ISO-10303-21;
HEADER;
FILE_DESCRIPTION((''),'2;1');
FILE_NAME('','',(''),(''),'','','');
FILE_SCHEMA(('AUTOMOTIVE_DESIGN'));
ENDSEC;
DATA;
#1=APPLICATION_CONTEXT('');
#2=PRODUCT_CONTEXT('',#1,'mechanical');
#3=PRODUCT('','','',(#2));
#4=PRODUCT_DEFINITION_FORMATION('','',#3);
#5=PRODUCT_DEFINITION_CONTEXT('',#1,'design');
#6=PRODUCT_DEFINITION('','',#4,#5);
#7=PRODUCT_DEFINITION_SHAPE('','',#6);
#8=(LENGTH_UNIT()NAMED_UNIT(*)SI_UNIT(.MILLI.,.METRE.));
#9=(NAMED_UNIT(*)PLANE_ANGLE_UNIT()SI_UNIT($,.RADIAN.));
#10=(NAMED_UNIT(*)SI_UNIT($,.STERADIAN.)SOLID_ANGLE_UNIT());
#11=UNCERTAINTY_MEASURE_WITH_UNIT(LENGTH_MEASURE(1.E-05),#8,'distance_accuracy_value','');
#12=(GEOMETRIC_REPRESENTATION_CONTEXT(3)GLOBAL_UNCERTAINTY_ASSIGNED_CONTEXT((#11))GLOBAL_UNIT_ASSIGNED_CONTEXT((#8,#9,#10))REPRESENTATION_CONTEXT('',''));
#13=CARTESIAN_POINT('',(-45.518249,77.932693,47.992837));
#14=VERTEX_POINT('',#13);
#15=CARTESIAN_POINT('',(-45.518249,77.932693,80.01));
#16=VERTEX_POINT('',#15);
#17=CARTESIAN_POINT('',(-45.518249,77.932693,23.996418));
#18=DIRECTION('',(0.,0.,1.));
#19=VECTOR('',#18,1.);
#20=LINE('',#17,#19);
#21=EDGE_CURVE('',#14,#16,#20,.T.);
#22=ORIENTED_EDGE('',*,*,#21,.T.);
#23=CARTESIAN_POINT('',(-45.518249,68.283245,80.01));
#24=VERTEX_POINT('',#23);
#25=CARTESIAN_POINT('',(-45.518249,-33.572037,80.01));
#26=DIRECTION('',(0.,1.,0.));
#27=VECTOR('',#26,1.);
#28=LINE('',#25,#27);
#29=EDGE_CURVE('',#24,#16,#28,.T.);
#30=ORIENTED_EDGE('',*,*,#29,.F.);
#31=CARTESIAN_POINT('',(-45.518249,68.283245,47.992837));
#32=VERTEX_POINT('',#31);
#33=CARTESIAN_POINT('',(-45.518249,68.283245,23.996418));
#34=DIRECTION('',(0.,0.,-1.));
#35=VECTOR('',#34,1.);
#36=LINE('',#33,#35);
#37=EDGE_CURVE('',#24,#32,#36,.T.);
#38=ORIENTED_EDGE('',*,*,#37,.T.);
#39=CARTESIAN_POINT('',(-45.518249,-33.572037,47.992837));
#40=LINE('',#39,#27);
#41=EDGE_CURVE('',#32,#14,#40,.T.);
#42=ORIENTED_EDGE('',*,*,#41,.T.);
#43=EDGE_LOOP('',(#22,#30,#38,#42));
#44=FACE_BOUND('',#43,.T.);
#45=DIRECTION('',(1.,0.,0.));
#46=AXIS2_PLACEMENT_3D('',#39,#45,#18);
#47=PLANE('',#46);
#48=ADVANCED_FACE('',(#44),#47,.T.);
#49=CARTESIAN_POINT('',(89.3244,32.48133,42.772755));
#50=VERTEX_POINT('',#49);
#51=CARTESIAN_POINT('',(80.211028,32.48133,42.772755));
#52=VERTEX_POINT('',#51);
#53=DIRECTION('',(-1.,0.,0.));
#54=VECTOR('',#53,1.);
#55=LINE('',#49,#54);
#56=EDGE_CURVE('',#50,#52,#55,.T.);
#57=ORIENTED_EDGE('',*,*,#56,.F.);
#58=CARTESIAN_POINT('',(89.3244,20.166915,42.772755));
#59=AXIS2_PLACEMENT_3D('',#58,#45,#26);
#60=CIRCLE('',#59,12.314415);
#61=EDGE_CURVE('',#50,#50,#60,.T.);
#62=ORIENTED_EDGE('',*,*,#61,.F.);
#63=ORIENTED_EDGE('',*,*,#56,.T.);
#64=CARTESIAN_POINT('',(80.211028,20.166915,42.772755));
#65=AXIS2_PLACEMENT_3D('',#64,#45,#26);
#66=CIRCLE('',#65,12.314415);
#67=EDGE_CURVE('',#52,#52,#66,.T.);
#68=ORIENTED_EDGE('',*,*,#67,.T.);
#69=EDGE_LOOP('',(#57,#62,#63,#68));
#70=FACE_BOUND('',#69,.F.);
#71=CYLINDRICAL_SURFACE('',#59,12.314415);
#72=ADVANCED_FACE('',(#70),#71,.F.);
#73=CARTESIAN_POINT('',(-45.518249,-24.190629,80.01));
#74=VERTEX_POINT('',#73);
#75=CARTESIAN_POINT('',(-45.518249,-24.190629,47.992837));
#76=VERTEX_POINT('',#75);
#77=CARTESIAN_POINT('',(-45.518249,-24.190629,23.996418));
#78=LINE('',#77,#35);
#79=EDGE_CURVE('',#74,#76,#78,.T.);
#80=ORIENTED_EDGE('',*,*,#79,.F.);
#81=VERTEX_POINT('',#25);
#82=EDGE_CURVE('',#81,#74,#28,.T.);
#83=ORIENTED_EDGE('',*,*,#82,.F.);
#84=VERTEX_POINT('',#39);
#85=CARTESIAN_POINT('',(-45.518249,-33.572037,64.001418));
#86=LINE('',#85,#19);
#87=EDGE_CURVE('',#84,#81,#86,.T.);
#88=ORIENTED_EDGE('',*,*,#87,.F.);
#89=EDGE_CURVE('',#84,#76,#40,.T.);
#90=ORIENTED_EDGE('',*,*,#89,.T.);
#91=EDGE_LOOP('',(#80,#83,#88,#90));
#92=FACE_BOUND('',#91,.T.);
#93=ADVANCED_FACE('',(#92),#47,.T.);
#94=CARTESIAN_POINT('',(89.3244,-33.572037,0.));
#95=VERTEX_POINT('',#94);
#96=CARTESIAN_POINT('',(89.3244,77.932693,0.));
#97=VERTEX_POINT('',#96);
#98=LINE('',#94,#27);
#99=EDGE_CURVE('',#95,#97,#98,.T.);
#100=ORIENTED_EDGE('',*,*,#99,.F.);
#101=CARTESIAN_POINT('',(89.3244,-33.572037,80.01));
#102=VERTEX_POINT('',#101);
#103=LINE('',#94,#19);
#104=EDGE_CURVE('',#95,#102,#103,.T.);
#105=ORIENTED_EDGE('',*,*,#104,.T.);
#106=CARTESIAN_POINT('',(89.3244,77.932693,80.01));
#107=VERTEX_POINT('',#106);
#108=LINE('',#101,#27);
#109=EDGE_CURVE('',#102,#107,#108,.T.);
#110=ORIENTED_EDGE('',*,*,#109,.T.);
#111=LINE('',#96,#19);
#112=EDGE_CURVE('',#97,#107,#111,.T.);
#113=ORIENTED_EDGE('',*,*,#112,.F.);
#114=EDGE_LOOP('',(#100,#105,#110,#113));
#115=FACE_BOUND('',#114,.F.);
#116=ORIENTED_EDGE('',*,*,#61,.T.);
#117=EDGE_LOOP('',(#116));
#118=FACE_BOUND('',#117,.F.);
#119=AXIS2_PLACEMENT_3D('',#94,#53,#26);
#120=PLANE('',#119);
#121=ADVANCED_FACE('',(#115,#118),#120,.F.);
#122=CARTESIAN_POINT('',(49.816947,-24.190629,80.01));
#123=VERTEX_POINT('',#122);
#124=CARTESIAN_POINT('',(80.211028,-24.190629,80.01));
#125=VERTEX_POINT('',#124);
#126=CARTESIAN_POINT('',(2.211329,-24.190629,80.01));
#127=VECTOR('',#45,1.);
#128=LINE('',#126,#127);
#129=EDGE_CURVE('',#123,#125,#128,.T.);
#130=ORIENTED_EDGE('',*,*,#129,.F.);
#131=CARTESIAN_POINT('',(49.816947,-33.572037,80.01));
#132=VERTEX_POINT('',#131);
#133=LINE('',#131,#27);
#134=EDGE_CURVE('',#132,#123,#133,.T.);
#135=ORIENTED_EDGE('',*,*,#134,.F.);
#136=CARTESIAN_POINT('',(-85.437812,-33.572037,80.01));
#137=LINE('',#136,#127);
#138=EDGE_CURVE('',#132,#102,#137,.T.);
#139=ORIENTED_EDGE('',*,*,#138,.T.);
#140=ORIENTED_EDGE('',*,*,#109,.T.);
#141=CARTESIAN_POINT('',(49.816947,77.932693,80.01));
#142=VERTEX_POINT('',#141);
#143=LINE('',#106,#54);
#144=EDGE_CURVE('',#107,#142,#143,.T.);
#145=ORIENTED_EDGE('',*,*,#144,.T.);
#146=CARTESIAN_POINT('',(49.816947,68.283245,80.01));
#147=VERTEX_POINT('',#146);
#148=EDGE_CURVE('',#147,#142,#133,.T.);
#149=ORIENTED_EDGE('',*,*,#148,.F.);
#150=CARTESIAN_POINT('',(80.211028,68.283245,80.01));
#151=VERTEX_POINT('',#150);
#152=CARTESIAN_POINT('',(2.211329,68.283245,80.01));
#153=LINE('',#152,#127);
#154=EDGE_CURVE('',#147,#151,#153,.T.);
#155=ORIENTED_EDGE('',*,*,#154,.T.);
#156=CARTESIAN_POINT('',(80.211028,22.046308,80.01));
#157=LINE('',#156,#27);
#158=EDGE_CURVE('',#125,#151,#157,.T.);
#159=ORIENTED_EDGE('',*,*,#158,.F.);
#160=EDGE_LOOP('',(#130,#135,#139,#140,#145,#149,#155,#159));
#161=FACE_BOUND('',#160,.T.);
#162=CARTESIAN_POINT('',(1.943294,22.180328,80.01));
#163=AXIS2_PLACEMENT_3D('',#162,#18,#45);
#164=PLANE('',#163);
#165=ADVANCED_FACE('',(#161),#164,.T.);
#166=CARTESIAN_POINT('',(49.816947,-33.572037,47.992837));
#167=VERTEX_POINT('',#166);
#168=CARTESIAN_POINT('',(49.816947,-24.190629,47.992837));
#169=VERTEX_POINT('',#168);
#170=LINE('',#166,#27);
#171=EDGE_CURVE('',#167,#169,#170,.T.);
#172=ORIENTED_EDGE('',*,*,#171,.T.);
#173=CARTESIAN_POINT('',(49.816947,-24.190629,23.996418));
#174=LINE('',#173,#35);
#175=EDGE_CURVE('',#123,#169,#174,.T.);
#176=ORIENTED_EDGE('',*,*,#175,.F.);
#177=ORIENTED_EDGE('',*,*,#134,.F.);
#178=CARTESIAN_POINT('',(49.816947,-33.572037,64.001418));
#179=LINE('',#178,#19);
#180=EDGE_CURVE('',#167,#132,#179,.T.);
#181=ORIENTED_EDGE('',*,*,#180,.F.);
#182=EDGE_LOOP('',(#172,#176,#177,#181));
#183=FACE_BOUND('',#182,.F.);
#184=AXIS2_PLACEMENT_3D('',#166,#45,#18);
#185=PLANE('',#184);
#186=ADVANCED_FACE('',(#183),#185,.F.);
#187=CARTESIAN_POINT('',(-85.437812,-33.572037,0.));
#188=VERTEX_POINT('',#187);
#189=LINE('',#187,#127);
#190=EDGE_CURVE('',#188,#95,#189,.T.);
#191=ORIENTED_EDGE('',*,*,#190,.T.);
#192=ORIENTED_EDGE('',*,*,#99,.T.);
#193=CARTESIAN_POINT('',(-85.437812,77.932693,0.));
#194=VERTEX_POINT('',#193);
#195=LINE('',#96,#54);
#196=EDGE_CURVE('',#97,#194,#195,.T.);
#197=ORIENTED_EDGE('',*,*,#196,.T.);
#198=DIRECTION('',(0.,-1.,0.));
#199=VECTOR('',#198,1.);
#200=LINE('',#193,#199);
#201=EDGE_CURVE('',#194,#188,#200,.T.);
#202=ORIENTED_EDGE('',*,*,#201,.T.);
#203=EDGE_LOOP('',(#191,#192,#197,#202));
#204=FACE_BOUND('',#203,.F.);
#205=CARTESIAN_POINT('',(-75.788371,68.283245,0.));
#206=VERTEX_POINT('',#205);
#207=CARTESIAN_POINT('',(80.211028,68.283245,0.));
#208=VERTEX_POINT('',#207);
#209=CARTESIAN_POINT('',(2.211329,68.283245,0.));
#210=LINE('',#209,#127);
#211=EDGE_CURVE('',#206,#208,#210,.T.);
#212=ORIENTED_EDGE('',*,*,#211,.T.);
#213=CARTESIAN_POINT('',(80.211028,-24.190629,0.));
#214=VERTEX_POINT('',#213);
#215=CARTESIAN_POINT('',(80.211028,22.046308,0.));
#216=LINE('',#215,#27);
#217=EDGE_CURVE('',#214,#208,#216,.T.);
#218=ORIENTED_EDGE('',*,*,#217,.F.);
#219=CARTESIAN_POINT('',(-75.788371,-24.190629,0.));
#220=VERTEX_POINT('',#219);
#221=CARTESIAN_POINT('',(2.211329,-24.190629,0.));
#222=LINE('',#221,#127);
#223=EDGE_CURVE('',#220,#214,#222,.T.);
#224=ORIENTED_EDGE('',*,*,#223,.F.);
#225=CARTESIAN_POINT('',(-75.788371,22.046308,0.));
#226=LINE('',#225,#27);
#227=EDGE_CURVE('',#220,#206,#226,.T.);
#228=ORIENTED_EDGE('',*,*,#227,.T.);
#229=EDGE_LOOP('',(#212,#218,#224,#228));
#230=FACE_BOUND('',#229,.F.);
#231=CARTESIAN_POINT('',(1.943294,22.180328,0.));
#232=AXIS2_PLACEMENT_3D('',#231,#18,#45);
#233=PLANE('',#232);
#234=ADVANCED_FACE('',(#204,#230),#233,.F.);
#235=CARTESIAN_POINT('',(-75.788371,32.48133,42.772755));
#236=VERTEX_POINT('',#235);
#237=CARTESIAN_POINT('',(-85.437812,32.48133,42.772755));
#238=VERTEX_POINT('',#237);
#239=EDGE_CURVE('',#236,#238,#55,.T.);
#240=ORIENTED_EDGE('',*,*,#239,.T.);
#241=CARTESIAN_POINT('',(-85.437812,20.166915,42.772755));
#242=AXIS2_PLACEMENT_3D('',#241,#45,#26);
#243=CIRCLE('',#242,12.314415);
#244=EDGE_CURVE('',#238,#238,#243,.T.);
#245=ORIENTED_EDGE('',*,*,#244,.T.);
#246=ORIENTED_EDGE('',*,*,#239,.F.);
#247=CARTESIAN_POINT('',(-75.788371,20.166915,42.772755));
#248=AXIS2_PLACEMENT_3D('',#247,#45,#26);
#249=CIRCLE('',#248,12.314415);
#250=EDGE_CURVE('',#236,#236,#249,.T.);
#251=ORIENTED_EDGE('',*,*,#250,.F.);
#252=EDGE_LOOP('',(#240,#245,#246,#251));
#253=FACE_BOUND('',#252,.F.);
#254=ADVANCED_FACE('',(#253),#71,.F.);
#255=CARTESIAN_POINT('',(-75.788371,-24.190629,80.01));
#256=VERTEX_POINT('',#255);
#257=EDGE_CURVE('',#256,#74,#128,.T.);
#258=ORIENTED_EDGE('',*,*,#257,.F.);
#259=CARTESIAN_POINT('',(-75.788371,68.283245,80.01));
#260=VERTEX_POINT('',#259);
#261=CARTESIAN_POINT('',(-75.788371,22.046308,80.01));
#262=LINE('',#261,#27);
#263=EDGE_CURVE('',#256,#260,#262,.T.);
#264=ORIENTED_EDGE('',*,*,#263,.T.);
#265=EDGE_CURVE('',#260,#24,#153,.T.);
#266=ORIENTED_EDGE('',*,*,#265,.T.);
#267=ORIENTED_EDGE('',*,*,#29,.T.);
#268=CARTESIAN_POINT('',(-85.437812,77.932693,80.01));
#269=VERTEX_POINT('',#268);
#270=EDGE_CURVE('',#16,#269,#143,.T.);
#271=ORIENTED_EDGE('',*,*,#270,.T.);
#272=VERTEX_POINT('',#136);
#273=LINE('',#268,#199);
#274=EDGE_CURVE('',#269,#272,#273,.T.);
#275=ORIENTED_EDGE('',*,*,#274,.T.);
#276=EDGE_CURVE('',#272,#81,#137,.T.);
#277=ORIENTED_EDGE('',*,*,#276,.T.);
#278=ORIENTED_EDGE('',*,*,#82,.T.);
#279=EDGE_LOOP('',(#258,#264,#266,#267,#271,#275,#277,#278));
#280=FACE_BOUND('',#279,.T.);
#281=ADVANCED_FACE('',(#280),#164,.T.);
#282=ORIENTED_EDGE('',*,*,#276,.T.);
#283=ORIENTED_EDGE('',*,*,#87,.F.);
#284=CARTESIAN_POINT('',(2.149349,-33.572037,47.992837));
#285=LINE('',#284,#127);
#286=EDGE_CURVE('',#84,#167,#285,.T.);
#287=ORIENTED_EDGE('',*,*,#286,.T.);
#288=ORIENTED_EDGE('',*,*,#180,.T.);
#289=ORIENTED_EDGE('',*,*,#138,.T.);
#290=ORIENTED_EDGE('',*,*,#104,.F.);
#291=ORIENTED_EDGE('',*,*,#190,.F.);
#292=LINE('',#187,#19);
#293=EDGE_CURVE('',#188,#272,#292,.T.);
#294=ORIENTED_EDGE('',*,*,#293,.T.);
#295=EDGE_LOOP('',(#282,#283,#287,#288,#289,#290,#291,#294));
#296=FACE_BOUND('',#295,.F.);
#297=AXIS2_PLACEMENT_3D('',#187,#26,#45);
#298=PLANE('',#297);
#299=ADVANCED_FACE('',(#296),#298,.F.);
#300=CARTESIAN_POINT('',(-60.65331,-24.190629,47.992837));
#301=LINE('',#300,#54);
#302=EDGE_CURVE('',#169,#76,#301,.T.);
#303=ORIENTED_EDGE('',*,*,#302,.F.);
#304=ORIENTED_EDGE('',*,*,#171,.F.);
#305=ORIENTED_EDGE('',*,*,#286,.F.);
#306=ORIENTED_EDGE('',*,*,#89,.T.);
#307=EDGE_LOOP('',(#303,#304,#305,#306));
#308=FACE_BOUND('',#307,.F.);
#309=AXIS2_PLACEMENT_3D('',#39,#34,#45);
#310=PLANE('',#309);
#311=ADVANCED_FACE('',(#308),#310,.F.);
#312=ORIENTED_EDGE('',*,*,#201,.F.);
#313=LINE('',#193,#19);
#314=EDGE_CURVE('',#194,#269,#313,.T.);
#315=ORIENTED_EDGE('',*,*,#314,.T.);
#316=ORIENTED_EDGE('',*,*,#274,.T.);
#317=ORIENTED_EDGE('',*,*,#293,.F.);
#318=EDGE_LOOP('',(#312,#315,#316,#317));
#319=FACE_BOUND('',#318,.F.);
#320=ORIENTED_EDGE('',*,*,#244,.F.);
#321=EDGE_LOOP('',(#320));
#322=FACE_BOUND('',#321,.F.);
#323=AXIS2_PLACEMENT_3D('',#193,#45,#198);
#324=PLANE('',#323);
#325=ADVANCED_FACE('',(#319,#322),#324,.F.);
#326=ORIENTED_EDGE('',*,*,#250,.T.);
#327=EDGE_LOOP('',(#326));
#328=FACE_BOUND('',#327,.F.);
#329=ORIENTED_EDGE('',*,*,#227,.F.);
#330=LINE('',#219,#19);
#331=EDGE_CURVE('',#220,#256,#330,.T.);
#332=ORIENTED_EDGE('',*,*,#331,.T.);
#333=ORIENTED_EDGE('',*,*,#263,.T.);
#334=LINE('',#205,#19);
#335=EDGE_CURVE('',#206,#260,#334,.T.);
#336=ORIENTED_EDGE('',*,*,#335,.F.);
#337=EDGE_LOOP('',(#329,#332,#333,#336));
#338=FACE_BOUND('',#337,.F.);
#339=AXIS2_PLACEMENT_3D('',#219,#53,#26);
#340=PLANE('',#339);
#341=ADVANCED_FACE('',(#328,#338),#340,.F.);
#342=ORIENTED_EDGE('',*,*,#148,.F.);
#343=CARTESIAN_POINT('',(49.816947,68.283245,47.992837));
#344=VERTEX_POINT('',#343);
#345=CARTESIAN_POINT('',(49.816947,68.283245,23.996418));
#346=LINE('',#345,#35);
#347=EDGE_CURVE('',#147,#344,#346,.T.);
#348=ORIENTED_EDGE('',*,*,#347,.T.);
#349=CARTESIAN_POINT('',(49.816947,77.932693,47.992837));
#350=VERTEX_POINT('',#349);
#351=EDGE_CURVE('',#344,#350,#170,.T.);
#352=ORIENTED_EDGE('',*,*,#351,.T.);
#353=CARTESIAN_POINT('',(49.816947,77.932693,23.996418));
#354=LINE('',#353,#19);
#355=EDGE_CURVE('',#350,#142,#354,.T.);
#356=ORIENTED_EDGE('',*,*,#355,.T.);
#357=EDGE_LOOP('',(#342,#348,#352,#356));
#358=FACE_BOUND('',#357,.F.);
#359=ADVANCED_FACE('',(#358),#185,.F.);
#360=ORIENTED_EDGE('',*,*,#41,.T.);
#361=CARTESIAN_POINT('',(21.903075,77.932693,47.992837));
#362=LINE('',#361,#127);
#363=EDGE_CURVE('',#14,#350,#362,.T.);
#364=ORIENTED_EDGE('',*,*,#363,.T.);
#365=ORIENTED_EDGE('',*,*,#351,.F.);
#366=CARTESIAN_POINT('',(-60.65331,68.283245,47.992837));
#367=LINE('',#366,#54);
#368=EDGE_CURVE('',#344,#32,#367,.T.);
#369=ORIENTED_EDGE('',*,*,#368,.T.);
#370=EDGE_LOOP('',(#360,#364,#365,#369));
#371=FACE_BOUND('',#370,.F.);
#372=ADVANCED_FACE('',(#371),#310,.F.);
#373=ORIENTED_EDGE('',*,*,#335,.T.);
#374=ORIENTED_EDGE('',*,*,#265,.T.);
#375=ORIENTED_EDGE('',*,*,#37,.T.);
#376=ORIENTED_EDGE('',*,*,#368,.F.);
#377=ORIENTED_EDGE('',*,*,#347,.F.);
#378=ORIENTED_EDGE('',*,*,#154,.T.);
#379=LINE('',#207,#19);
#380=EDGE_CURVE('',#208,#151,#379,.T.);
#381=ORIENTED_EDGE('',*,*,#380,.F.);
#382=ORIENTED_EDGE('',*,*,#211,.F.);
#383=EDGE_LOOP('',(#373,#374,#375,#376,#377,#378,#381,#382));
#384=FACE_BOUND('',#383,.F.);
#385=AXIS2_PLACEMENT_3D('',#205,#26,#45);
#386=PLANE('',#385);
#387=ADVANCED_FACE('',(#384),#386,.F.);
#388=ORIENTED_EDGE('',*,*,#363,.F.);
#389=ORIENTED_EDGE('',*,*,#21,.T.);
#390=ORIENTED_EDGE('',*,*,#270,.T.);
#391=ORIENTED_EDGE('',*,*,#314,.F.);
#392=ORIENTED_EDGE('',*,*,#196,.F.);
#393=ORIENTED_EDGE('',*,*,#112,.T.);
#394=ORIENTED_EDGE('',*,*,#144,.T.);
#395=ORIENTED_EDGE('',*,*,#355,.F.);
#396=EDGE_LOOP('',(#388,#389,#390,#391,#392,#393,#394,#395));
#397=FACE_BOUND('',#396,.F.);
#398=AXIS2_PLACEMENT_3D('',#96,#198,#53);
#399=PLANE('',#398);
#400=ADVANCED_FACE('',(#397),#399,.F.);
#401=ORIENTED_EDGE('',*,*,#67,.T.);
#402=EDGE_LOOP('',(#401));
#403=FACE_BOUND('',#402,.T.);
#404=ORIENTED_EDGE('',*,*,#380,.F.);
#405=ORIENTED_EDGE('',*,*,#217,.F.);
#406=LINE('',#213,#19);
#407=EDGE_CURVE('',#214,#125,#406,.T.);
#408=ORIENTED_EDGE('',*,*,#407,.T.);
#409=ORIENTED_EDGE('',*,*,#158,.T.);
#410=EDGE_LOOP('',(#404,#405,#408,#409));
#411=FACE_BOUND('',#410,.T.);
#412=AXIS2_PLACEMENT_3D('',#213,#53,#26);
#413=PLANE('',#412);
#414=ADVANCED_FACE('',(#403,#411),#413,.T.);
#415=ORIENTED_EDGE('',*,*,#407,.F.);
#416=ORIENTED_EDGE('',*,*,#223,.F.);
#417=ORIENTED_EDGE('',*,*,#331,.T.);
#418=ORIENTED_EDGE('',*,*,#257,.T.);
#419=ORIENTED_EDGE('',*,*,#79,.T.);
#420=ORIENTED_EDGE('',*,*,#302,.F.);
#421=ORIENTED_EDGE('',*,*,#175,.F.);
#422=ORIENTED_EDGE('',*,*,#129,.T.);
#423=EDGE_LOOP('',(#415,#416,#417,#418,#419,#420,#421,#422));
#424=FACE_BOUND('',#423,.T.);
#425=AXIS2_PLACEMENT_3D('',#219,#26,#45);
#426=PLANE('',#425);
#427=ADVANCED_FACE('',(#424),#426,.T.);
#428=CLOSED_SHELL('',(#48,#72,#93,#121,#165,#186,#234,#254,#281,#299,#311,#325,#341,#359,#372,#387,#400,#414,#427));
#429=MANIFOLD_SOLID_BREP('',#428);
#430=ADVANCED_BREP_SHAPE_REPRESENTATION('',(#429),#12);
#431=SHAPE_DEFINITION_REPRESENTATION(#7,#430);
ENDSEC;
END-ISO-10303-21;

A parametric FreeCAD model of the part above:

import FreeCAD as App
import Part
import Sketcher

V = App.Vector
Q = App.Units.Quantity


def add_polygon(sketch, points):
    """Adds a closed chain of lines whose ends are joined by coincident constraints."""
    first, n = sketch.GeometryCount, len(points)
    for a, b in zip(points, points[1:] + points[:1]):
        sketch.addGeometry(Part.LineSegment(App.Vector(*a, 0), App.Vector(*b, 0)), False)
    for i in range(n):
        sketch.addConstraint(Sketcher.Constraint("Coincident", first + i, 2, first + (i + 1) % n, 1))

doc = App.newDocument("Part")
body = doc.addObject("PartDesign::Body", "Body")

# Sketch on XY plane
sketch1 = body.newObject("Sketcher::SketchObject", "Sketch")
sketch1.AttachmentSupport = (doc.getObject("XY_Plane"), [""])
sketch1.MapMode = "FlatFace"
add_polygon(sketch1, [(-85, 78), (-85, -34), (89, -34), (89, 78)])  # lines 0-3
add_polygon(sketch1, [(80, -24), (-76, -24), (-76, 68), (80, 68)])  # lines 4-7
sketch1.addConstraint([
    Sketcher.Constraint("Vertical", 0),
    Sketcher.Constraint("Horizontal", 1),
    Sketcher.Constraint("Vertical", 2),
    Sketcher.Constraint("Horizontal", 3),
    Sketcher.Constraint("Horizontal", 4),
    Sketcher.Constraint("Vertical", 5),
    Sketcher.Constraint("Horizontal", 6),
    Sketcher.Constraint("Vertical", 7),
    Sketcher.Constraint("DistanceX", 4, 2, 4, 1, 155.9994),
    Sketcher.Constraint("DistanceX", 1, 1, 1, 2, 174.762212),
    Sketcher.Constraint("DistanceY", 0, 2, 0, 1, 111.50473),
    Sketcher.Constraint("DistanceX", -1, 1, 1, 2, 89.3244),
    Sketcher.Constraint("DistanceY", 5, 1, 5, 2, 92.473874),
    Sketcher.Constraint("DistanceX", 4, 2, -1, 1, 75.788371),
    Sketcher.Constraint("DistanceY", 4, 2, -1, 1, 24.190629),
    Sketcher.Constraint("DistanceY", 4, 2, 3, 2, 102.123322),
])
pad1 = body.newObject("PartDesign::Pad", "Pad")
pad1.Profile = sketch1
pad1.Length = Q("3.15 in")

# Sketch on XZ plane
sketch2 = body.newObject("Sketcher::SketchObject", "Sketch001")
sketch2.AttachmentSupport = (doc.getObject("XZ_Plane"), [""])
sketch2.MapMode = "FlatFace"
sketch2.AttachmentOffset = App.Placement(V(0, 0, 33.572037), App.Rotation())
add_polygon(sketch2, [(-46, 80), (-46, 48), (50, 48), (50, 80)])  # lines 0-3
sketch2.addConstraint([
    Sketcher.Constraint("Vertical", 0),
    Sketcher.Constraint("Horizontal", 1),
    Sketcher.Constraint("Vertical", 2),
    Sketcher.Constraint("Horizontal", 3),
    Sketcher.Constraint("DistanceY", -1, 1, 2, 2, Q("3.15 in")),
    Sketcher.Constraint("DistanceX", 1, 1, 1, 2, 95.335197),
    Sketcher.Constraint("DistanceY", 0, 2, 0, 1, 32.017163),
    Sketcher.Constraint("DistanceX", 0, 2, -1, 1, 45.518249),
])
pocket1 = body.newObject("PartDesign::Pocket", "Pocket")
pocket1.Profile = sketch2
pocket1.Type = "ThroughAll"

# Sketch on YZ plane
sketch3 = body.newObject("Sketcher::SketchObject", "Sketch002")
sketch3.AttachmentSupport = (doc.getObject("YZ_Plane"), [""])
sketch3.MapMode = "FlatFace"
sketch3.AttachmentOffset = App.Placement(V(0, 0, 89.3244), App.Rotation())
sketch3.addGeometry(Part.Circle(V(20, 43, 0), V(0, 0, 1), 12), False)
sketch3.addConstraint([
    Sketcher.Constraint("Diameter", 0, 24.628831),
    Sketcher.Constraint("DistanceX", -1, 1, 0, 3, 20.166915),
    Sketcher.Constraint("DistanceY", -1, 1, 0, 3, 42.772755),
])
pocket2 = body.newObject("PartDesign::Pocket", "Pocket001")
pocket2.Profile = sketch3
pocket2.Type = "ThroughAll"

doc.recompute()
